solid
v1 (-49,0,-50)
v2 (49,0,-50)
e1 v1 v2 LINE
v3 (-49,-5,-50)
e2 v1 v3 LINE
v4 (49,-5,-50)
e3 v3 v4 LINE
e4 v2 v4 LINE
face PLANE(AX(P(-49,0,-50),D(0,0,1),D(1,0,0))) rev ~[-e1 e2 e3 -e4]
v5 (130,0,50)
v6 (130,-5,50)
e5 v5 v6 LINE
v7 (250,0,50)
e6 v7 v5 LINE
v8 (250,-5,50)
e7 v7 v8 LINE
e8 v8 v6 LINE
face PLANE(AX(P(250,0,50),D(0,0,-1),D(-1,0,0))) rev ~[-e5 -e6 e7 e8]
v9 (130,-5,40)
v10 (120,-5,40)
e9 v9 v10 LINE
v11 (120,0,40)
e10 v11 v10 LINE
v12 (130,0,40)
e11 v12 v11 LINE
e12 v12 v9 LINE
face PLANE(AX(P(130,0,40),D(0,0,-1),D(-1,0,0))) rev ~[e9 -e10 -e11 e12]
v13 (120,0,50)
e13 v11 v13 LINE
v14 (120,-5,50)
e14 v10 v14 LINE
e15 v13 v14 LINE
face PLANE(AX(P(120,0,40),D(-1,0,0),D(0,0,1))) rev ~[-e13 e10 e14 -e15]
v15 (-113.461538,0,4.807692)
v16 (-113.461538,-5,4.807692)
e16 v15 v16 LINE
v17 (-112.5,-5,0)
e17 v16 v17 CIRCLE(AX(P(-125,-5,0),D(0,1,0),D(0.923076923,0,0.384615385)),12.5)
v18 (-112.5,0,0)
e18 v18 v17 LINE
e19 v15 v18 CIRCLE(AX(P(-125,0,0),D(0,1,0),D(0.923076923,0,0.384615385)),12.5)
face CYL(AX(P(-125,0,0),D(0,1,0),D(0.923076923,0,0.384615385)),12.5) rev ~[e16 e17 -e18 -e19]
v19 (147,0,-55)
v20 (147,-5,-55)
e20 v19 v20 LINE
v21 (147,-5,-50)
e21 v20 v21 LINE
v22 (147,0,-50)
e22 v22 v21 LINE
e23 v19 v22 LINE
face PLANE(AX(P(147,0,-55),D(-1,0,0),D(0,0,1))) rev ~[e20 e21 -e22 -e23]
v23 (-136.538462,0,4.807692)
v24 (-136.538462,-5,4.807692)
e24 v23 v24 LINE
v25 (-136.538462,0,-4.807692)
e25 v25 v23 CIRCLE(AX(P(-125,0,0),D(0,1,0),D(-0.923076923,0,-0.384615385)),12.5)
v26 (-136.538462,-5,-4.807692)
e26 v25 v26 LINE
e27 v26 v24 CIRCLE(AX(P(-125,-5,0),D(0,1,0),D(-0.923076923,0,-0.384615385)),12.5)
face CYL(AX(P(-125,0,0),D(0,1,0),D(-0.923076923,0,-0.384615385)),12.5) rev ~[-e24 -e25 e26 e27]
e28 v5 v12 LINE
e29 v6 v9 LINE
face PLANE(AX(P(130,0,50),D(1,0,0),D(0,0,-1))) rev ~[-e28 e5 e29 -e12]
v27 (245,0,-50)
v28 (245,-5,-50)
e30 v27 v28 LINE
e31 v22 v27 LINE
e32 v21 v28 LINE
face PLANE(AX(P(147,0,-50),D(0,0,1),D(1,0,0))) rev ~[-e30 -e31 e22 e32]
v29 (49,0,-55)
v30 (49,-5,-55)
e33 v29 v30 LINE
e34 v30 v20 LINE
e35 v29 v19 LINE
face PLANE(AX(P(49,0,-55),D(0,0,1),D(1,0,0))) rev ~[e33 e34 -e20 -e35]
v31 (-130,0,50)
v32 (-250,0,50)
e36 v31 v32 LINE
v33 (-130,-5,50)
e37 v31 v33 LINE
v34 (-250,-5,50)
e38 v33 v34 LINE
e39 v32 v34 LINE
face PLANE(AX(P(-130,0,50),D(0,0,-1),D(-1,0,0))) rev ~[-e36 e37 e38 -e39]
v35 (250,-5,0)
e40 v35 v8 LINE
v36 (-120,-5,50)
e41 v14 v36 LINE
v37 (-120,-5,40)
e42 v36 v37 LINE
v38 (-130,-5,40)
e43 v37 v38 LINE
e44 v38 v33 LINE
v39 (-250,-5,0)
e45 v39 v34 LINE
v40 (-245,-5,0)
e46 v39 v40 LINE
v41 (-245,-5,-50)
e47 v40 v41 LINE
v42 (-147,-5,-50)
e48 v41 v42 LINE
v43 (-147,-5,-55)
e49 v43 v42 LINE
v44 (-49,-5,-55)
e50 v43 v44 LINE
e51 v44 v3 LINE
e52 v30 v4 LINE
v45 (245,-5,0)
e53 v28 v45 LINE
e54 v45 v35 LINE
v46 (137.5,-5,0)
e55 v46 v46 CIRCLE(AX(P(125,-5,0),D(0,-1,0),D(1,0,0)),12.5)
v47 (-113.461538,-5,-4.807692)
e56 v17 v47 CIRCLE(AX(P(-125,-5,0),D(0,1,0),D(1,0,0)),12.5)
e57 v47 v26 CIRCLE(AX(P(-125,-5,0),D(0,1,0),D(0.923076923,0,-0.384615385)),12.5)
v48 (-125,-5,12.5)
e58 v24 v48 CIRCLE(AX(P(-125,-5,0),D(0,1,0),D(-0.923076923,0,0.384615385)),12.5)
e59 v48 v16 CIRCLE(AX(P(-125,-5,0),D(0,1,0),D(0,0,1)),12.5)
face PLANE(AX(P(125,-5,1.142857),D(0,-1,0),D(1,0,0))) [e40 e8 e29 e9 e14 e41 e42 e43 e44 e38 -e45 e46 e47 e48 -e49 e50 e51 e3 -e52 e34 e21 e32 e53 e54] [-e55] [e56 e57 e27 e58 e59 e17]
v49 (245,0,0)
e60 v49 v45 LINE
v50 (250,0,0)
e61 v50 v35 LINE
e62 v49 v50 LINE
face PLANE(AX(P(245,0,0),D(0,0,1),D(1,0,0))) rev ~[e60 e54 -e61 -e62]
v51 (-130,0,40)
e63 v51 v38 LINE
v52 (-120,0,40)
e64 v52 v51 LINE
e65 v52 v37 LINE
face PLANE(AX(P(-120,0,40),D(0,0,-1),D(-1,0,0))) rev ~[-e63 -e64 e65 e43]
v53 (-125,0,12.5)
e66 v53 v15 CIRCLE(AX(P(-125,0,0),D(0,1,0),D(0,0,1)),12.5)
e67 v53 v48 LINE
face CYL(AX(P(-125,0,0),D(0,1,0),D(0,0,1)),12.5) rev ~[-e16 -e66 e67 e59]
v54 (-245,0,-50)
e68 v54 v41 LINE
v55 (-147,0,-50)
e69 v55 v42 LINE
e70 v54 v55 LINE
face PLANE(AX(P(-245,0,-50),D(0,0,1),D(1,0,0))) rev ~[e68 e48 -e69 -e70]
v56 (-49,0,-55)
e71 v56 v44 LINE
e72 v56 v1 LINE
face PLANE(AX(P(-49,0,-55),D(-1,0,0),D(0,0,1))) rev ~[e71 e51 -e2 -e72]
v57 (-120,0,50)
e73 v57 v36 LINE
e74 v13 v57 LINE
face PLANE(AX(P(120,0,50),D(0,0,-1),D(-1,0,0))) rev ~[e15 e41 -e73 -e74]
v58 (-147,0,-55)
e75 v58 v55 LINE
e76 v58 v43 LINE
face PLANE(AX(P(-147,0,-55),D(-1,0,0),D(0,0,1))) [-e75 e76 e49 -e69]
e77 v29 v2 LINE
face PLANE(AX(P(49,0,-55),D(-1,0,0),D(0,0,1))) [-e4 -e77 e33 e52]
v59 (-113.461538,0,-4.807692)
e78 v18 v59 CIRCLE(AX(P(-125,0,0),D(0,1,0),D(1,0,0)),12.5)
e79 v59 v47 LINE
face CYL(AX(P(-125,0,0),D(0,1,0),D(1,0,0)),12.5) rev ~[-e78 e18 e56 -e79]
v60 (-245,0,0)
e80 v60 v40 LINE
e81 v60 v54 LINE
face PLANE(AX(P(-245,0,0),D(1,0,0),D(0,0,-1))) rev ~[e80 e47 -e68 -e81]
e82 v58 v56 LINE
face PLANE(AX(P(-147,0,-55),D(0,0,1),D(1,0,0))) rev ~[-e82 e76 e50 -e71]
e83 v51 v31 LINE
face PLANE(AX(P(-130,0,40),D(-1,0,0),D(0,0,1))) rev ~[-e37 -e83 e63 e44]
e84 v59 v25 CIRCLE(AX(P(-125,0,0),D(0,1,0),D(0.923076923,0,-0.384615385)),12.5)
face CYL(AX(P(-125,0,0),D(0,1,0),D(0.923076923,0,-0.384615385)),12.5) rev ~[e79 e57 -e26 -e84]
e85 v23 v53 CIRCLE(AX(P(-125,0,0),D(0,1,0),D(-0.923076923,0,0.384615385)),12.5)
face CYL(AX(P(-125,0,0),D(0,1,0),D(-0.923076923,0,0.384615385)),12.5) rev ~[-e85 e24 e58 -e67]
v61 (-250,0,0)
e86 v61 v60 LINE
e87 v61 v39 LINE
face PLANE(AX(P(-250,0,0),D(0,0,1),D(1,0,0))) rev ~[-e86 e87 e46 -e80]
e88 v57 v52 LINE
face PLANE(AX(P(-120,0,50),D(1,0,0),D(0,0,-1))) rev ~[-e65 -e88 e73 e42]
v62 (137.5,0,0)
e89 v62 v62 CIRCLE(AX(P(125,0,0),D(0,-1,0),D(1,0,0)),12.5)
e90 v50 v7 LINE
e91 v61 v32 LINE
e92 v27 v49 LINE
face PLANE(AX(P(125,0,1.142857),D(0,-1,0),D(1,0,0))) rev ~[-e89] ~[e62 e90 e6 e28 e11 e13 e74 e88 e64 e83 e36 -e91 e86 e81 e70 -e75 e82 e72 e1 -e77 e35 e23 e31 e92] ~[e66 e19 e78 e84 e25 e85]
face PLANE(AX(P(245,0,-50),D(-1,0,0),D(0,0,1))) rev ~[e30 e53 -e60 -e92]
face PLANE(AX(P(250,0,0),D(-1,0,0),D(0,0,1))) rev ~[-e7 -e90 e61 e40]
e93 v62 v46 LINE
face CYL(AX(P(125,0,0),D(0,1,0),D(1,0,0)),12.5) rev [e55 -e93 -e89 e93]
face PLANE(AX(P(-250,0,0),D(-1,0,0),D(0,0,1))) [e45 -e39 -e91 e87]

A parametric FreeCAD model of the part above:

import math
import FreeCAD as App
import Part
import Sketcher
from FreeCAD import Vector


def add_polygon(sketch, points):
    """Adds a closed chain of lines whose ends are joined by coincident constraints."""
    first, n = sketch.GeometryCount, len(points)
    for a, b in zip(points, points[1:] + points[:1]):
        sketch.addGeometry(Part.LineSegment(App.Vector(*a, 0), App.Vector(*b, 0)), False)
    for i in range(n):
        sketch.addConstraint(Sketcher.Constraint("Coincident", first + i, 2, first + (i + 1) % n, 1))

doc = App.newDocument("Part")
body = doc.addObject("PartDesign::Body", "Body")

sketch1 = body.newObject("Sketcher::SketchObject", "Sketch")
sketch1.AttachmentSupport = (doc.getObject("XZ_Plane"), [""])
sketch1.MapMode = "FlatFace"
add_polygon(sketch1, [(245, -50), (245, 0), (250, 0), (250, 50), (130, 50), (130, 40), (120, 40), (120, 50), (-120, 50), (-120, 40), (-130, 40), (-130, 50), (-250, 50), (-250, 0), (-245, 0), (-245, -50), (-147, -50), (-147, -55), (-49, -55), (-49, -50), (49, -50), (49, -55), (147, -55), (147, -50)])
sketch1.addGeometry(Part.ArcOfCircle(Part.Circle(Vector(-125, 0, 0), Vector(0, 0, 1), 12.5), math.radians(23), math.radians(90)), False)
sketch1.addGeometry(Part.ArcOfCircle(Part.Circle(Vector(-125, 0, 0), Vector(0, 0, 1), 12.5), math.radians(0), math.radians(23)), False)
sketch1.addGeometry(Part.ArcOfCircle(Part.Circle(Vector(-125, 0, 0), Vector(0, 0, 1), 12.5), math.radians(-23), math.radians(0)), False)
sketch1.addGeometry(Part.ArcOfCircle(Part.Circle(Vector(-125, 0, 0), Vector(0, 0, 1), 12.5), math.radians(-157), math.radians(-23)), False)
sketch1.addGeometry(Part.ArcOfCircle(Part.Circle(Vector(-125, 0, 0), Vector(0, 0, 1), 12.5), math.radians(157), math.radians(203)), False)
sketch1.addGeometry(Part.ArcOfCircle(Part.Circle(Vector(-125, 0, 0), Vector(0, 0, 1), 12.5), math.radians(90), math.radians(157)), False)
sketch1.addGeometry(Part.Circle(Vector(125, 0, 0), Vector(0, 0, 1), 12.5), False)
sketch1.addConstraint([
    Sketcher.Constraint("Tangent", 24, 1, 25, 2),
    Sketcher.Constraint("Tangent", 25, 1, 26, 2),
    Sketcher.Constraint("Tangent", 26, 1, 27, 2),
    Sketcher.Constraint("Tangent", 27, 1, 28, 2),
    Sketcher.Constraint("Tangent", 28, 1, 29, 2),
    Sketcher.Constraint("Tangent", 29, 1, 24, 2),
    Sketcher.Constraint("Vertical", 0),
    Sketcher.Constraint("Horizontal", 1),
    Sketcher.Constraint("Vertical", 2),
    Sketcher.Constraint("Horizontal", 3),
    Sketcher.Constraint("Vertical", 4),
    Sketcher.Constraint("Horizontal", 5),
    Sketcher.Constraint("Vertical", 6),
    Sketcher.Constraint("Horizontal", 7),
    Sketcher.Constraint("Vertical", 8),
    Sketcher.Constraint("Horizontal", 9),
    Sketcher.Constraint("Vertical", 10),
    Sketcher.Constraint("Horizontal", 11),
    Sketcher.Constraint("Vertical", 12),
    Sketcher.Constraint("Horizontal", 13),
    Sketcher.Constraint("Vertical", 14),
    Sketcher.Constraint("Horizontal", 15),
    Sketcher.Constraint("Vertical", 16),
    Sketcher.Constraint("Horizontal", 17),
    Sketcher.Constraint("Vertical", 18),
    Sketcher.Constraint("Horizontal", 19),
    Sketcher.Constraint("Vertical", 20),
    Sketcher.Constraint("Horizontal", 21),
    Sketcher.Constraint("Vertical", 22),
    Sketcher.Constraint("Horizontal", 23),
    Sketcher.Constraint("Coincident", 26, 3, 24, 3),
    Sketcher.Constraint("Equal", 26, 27),
    Sketcher.Constraint("Equal", 29, 30),
    Sketcher.Constraint("Symmetric", 24, 3, 30, 3, -1, 1),
    Sketcher.Constraint("Symmetric", 1, 2, 12, 2, -1, 1),
    Sketcher.Constraint("Symmetric", 5, 2, 8, 2, -2),
    Sketcher.Constraint("Symmetric", 3, 2, 10, 2, -2),
    Sketcher.Constraint("Symmetric", 0, 2, 13, 2, -2),
    Sketcher.Constraint("Symmetric", 17, 2, 20, 2, -2),
    Sketcher.Constraint("Symmetric", 15, 2, 22, 2, -2),
    Sketcher.Constraint("Symmetric", 24, 1, 26, 1, -1),
    Sketcher.Constraint("PointOnObject", 25, 1, -1),
    Sketcher.Constraint("Horizontal", 3, 2, 6, 2),
    Sketcher.Constraint("Horizontal", 15, 2, 18, 2),
    Sketcher.Constraint("Horizontal", 26, 1, 27, 1),
    Sketcher.Constraint("Horizontal", 24, 1, 28, 1),
    Sketcher.Constraint("Vertical", 28, 3, 29, 1),
    Sketcher.Constraint("Equal", 15, 17),
    Sketcher.Constraint("Equal", 17, 19),
    Sketcher.Constraint("Equal", 0, 2),
    Sketcher.Constraint("Equal", 9, 4),
    Sketcher.Constraint("Equal", 13, 16),
    Sketcher.Constraint("Diameter", 30, 25.0),
    Sketcher.Constraint("DistanceX", 1, 1, 1, 2, 5.0),
    Sketcher.Constraint("DistanceX", 3, 2, 3, 1, 120.0),
    Sketcher.Constraint("DistanceX", 5, 2, 5, 1, 10.0),
    Sketcher.Constraint("DistanceX", 7, 2, 7, 1, 240.0),
    Sketcher.Constraint("DistanceY", 0, 1, 0, 2, 50.0),
    Sketcher.Constraint("DistanceX", 24, 3, -1, 1, 125.0),
    Sketcher.Constraint("DistanceX", 24, 1, -1, 1, 113.461538),
])
pad1 = body.newObject("PartDesign::Pad", "Pad")
pad1.Profile = sketch1
pad1.Length = 5

doc.recompute()
